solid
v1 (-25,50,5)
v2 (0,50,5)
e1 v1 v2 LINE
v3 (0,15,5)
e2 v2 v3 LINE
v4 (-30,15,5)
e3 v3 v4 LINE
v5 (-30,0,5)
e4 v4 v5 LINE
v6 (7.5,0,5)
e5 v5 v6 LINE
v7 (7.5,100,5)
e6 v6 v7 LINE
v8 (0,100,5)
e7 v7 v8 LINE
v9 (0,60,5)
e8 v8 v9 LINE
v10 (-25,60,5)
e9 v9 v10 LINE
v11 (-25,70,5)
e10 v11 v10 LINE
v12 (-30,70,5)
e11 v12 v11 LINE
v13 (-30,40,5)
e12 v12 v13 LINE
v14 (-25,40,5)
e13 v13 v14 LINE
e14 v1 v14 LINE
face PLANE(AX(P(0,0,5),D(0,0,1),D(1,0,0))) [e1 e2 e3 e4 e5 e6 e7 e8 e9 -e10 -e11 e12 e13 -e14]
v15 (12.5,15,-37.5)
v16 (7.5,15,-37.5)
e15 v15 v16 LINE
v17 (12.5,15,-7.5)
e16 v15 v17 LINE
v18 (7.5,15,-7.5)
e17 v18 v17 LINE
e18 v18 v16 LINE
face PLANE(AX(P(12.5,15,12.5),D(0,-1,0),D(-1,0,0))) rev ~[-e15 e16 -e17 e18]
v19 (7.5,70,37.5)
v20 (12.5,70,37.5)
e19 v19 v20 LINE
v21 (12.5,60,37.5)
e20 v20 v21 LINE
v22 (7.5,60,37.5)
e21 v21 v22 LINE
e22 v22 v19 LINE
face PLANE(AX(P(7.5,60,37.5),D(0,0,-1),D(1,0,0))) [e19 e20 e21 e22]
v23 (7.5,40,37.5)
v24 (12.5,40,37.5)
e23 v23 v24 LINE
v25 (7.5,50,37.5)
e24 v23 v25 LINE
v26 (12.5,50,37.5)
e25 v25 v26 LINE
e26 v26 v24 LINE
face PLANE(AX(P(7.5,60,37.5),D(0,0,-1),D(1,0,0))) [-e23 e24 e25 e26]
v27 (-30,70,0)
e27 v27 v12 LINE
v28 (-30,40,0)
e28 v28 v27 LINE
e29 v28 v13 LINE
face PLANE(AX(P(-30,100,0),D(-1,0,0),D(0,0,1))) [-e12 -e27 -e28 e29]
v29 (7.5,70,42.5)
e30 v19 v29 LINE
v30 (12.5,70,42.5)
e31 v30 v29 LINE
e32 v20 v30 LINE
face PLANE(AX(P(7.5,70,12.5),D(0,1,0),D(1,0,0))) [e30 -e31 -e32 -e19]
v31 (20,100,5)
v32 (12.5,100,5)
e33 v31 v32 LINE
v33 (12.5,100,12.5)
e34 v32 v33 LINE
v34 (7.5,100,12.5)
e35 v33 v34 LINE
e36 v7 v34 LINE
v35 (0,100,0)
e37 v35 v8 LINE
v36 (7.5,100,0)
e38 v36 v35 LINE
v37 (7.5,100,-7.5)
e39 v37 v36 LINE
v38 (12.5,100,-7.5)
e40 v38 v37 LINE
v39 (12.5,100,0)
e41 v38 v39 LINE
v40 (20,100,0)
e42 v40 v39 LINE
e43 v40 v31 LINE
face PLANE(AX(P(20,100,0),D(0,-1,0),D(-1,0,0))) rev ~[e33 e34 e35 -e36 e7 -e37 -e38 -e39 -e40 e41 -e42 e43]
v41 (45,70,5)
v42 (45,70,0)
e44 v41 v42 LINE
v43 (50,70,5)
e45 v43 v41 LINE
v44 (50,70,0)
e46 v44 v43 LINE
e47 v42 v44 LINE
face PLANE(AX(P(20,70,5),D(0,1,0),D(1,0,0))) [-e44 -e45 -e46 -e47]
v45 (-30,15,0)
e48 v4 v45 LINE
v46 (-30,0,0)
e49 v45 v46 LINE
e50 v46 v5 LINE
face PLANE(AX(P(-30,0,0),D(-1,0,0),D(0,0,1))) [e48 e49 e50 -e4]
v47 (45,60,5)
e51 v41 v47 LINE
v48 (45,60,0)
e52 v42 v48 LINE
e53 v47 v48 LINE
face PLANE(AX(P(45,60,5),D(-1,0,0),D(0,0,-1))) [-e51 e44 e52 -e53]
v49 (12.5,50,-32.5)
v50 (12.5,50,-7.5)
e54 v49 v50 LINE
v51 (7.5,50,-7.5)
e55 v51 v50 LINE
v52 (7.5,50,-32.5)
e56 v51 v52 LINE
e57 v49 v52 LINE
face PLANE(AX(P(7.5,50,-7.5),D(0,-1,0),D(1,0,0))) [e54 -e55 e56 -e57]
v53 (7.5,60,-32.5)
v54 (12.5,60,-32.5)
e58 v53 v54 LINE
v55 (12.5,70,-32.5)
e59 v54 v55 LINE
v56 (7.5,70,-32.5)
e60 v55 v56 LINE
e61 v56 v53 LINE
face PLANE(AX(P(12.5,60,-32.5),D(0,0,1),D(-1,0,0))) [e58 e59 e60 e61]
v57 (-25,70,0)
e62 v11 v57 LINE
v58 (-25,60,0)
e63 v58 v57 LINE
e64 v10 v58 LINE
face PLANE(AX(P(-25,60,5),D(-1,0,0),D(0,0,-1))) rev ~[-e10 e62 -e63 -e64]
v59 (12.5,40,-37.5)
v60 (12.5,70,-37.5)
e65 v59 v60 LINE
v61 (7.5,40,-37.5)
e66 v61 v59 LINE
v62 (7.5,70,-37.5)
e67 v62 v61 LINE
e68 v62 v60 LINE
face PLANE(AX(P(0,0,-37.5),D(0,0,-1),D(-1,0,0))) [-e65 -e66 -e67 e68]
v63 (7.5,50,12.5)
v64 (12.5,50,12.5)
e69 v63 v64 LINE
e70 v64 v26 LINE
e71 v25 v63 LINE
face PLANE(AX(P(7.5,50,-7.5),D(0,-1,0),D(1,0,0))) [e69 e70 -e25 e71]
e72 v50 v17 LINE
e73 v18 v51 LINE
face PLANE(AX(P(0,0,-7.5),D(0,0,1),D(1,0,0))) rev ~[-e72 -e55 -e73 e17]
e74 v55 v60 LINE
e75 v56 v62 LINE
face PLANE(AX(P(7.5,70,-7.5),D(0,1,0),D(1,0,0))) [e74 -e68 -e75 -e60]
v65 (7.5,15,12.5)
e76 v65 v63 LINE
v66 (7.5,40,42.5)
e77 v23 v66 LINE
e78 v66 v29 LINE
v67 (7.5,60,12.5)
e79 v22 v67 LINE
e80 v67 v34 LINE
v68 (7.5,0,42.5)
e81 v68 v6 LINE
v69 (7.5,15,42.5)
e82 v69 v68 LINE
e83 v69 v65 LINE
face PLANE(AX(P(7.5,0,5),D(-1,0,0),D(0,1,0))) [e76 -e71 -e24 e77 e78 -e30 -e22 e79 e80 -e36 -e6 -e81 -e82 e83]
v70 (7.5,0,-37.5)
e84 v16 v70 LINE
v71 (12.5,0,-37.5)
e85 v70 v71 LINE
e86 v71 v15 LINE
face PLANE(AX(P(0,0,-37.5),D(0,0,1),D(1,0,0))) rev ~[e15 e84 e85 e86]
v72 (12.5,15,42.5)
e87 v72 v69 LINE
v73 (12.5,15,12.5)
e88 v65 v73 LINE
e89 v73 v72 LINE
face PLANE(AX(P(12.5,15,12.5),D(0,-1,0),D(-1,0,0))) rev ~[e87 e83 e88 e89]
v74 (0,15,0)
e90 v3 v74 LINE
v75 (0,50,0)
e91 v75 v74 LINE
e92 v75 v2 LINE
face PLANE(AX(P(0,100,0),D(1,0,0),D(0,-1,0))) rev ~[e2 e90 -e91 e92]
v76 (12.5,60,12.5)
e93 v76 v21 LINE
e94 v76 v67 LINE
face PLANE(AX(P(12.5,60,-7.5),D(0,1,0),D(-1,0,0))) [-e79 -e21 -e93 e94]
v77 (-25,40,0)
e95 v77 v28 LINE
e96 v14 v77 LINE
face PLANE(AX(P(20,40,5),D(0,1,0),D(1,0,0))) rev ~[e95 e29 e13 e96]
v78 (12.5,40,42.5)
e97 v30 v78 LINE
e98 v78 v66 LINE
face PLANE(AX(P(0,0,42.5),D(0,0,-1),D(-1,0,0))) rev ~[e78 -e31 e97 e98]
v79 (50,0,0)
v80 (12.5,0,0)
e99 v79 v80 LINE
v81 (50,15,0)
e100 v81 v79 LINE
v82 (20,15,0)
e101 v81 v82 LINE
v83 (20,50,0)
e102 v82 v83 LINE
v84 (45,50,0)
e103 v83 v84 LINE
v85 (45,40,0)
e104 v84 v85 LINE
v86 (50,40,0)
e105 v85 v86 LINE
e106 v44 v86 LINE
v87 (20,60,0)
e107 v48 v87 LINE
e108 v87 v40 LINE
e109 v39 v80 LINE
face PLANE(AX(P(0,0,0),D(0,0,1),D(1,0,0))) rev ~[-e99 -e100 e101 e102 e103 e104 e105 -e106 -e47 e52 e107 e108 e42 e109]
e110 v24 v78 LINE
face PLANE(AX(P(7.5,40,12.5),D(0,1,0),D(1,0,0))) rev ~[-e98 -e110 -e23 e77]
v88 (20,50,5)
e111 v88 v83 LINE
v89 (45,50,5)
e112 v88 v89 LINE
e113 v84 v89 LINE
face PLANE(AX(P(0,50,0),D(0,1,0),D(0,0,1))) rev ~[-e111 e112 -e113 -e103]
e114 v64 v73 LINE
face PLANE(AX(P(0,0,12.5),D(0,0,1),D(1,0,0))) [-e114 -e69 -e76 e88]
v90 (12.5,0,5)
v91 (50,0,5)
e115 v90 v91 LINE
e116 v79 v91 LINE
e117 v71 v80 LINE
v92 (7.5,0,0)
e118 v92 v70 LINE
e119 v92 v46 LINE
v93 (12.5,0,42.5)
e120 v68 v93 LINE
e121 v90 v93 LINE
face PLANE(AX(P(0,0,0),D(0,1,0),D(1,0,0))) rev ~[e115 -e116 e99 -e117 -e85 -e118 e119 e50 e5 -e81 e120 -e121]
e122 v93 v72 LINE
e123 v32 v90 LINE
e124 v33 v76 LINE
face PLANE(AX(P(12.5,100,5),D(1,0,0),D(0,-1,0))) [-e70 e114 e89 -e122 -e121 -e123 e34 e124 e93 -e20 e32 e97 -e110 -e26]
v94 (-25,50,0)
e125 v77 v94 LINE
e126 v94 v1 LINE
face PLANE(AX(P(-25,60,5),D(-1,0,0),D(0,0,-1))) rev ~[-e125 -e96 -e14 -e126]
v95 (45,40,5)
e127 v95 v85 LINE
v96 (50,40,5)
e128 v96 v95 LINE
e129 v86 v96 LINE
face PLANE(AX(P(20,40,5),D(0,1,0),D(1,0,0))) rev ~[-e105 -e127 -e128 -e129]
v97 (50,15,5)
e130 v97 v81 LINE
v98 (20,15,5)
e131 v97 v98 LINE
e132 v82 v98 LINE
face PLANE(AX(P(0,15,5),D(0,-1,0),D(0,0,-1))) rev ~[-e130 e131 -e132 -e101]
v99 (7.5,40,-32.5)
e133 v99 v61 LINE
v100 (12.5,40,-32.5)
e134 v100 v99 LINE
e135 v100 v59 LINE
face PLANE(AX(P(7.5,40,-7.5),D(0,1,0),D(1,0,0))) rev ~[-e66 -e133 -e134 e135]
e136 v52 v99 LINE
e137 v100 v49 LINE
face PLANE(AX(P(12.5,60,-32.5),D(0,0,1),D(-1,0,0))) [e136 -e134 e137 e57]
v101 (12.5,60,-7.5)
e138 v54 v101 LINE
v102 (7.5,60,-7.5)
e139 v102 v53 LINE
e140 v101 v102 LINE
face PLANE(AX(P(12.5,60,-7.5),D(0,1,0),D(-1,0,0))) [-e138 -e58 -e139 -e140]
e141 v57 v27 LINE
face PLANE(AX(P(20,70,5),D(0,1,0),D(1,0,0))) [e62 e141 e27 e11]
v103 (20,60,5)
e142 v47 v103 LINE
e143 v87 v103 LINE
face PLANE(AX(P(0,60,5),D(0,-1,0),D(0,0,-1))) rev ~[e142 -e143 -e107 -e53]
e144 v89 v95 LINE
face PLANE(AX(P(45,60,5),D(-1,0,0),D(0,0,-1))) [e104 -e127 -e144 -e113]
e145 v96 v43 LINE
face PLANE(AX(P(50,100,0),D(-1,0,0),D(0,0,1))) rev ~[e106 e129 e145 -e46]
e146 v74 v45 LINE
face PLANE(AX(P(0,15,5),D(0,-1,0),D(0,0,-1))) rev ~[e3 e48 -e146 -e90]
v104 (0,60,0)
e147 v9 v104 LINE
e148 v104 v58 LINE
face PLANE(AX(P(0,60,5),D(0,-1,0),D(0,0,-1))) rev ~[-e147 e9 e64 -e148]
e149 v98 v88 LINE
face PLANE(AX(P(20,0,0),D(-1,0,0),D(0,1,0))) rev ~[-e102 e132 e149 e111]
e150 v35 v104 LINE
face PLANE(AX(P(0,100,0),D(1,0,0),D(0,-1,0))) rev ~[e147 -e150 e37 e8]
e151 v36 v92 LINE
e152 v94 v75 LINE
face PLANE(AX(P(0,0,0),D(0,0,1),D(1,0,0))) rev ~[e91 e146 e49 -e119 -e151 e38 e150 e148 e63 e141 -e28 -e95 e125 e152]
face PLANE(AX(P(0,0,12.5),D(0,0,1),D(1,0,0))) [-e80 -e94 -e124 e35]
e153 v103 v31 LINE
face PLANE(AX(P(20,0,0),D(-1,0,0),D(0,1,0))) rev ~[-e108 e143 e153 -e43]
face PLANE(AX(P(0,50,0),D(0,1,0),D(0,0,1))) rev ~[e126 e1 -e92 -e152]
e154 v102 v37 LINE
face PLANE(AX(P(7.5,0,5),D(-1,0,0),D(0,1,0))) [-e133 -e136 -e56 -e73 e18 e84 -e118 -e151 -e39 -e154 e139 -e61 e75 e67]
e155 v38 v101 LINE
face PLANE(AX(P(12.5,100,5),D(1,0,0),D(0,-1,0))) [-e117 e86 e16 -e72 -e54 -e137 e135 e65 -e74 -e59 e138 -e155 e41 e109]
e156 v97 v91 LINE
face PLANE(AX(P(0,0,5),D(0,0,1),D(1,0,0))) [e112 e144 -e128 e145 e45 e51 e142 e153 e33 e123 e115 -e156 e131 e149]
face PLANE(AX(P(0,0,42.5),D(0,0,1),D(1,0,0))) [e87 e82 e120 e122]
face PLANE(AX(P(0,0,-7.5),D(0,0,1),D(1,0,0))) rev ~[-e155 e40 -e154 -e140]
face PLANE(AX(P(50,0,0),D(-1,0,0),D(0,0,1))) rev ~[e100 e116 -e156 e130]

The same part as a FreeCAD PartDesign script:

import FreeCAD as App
import Part
import Sketcher
from FreeCAD import Vector
Q = App.Units.Quantity

doc = App.newDocument("Part")
body = doc.addObject("PartDesign::Body", "Body")

sketch1 = body.newObject("Sketcher::SketchObject", "Sketch")
sketch1.AttachmentSupport = (doc.getObject("XY_Plane"), [""])
sketch1.MapMode = "FlatFace"
sketch1.addGeometry([
    Part.LineSegment(Vector(0, 100, 0), Vector(0, 0, 0)),
    Part.LineSegment(Vector(0, 0, 0), Vector(20, 0, 0)),
    Part.LineSegment(Vector(20, 0, 0), Vector(20, 100, 0)),
    Part.LineSegment(Vector(20, 100, 0), Vector(0, 100, 0)),
], False)
sketch1.addConstraint([
    Sketcher.Constraint("Coincident", 0, 2, 1, 1),
    Sketcher.Constraint("Coincident", 1, 2, 2, 1),
    Sketcher.Constraint("Coincident", 2, 2, 3, 1),
    Sketcher.Constraint("Coincident", 3, 2, 0, 1),
    Sketcher.Constraint("Vertical", 0),
    Sketcher.Constraint("Horizontal", 1),
    Sketcher.Constraint("Vertical", 2),
    Sketcher.Constraint("Horizontal", 3),
    Sketcher.Constraint("Coincident", 0, 2, -1, 1),
    Sketcher.Constraint("DistanceX", 1, 1, 1, 2, Q("20 mm")),
    Sketcher.Constraint("DistanceY", 0, 2, 0, 1, Q("100 mm")),
])
pad1 = body.newObject("PartDesign::Pad", "Pad")
pad1.Profile = sketch1
pad1.Length = 5

sketch2 = body.newObject("Sketcher::SketchObject", "Sketch001")
sketch2.AttachmentSupport = (doc.getObject("XY_Plane"), [""])
sketch2.MapMode = "FlatFace"
sketch2.AttachmentOffset = App.Placement(Vector(0, 0, 5), App.Rotation())
sketch2.addGeometry([
    Part.LineSegment(Vector(12.5, 0, 0), Vector(12.5, 100, 0)),
    Part.LineSegment(Vector(12.5, 100, 0), Vector(7.5, 100, 0)),
    Part.LineSegment(Vector(7.5, 100, 0), Vector(7.5, 0, 0)),
    Part.LineSegment(Vector(7.5, 0, 0), Vector(12.5, 0, 0)),
], False)
sketch2.addConstraint([
    Sketcher.Constraint("Coincident", 0, 2, 1, 1),
    Sketcher.Constraint("Coincident", 1, 2, 2, 1),
    Sketcher.Constraint("Coincident", 2, 2, 3, 1),
    Sketcher.Constraint("Coincident", 3, 2, 0, 1),
    Sketcher.Constraint("Vertical", 0),
    Sketcher.Constraint("Horizontal", 1),
    Sketcher.Constraint("Vertical", 2),
    Sketcher.Constraint("Horizontal", 3),
    Sketcher.Constraint("PointOnObject", 2, 2, -1),
    Sketcher.Constraint("DistanceX", -1, 1, 1, 2, Q("7.5 mm")),
    Sketcher.Constraint("DistanceX", 1, 2, 1, 1, Q("5 mm")),
    Sketcher.Constraint("DistanceY", 0, 1, 0, 2, Q("100 mm")),
])
pad2 = body.newObject("PartDesign::Pad", "Pad001")
pad2.Profile = sketch2
pad2.Type = "TwoLengths"
pad2.Length = 7.5
pad2.Length2 = 12.5

sketch3 = body.newObject("Sketcher::SketchObject", "Sketch002")
sketch3.AttachmentSupport = (doc.getObject("XY_Plane"), [""])
sketch3.MapMode = "FlatFace"
sketch3.AttachmentOffset = App.Placement(Vector(0, 0, 12.5), App.Rotation())
sketch3.addGeometry([
    Part.LineSegment(Vector(7.5, 0, 0), Vector(12.5, 0, 0)),
    Part.LineSegment(Vector(12.5, 0, 0), Vector(12.5, 15, 0)),
    Part.LineSegment(Vector(12.5, 15, 0), Vector(7.5, 15, 0)),
    Part.LineSegment(Vector(7.5, 15, 0), Vector(7.5, 0, 0)),
], False)
sketch3.addConstraint([
    Sketcher.Constraint("Coincident", 0, 2, 1, 1),
    Sketcher.Constraint("Coincident", 1, 2, 2, 1),
    Sketcher.Constraint("Coincident", 2, 2, 3, 1),
    Sketcher.Constraint("Coincident", 3, 2, 0, 1),
    Sketcher.Constraint("Horizontal", 0),
    Sketcher.Constraint("Vertical", 1),
    Sketcher.Constraint("Horizontal", 2),
    Sketcher.Constraint("Vertical", 3),
    Sketcher.Constraint("PointOnObject", 0, 2, -1),
    Sketcher.Constraint("DistanceY", 1, 1, 1, 2, Q("15 mm")),
    Sketcher.Constraint("DistanceX", 0, 1, 0, 2, Q("5 mm")),
    Sketcher.Constraint("DistanceX", -1, 1, 0, 2, Q("12.5 mm")),
])
pad3 = body.newObject("PartDesign::Pad", "Pad002")
pad3.Profile = sketch3
pad3.Type = "TwoLengths"
pad3.Length = 30
pad3.Length2 = 50

sketch4 = body.newObject("Sketcher::SketchObject", "Sketch003")
sketch4.AttachmentSupport = (doc.getObject("YZ_Plane"), [""])
sketch4.MapMode = "FlatFace"
sketch4.addGeometry([
    Part.LineSegment(Vector(0, 5, 0), Vector(15, 5, 0)),
    Part.LineSegment(Vector(15, 5, 0), Vector(15, 0, 0)),
    Part.LineSegment(Vector(15, 0, 0), Vector(0, 0, 0)),
    Part.LineSegment(Vector(0, 0, 0), Vector(0, 5, 0)),
], False)
sketch4.addConstraint([
    Sketcher.Constraint("Coincident", 0, 2, 1, 1),
    Sketcher.Constraint("Coincident", 1, 2, 2, 1),
    Sketcher.Constraint("Coincident", 2, 2, 3, 1),
    Sketcher.Constraint("Coincident", 3, 2, 0, 1),
    Sketcher.Constraint("Horizontal", 0),
    Sketcher.Constraint("Vertical", 1),
    Sketcher.Constraint("Horizontal", 2),
    Sketcher.Constraint("Vertical", 3),
    Sketcher.Constraint("Coincident", 2, 2, -1, 1),
    Sketcher.Constraint("DistanceX", 0, 1, 0, 2, Q("15 mm")),
    Sketcher.Constraint("DistanceY", 1, 2, 1, 1, Q("5 mm")),
])
pad4 = body.newObject("PartDesign::Pad", "Pad003")
pad4.Profile = sketch4
pad4.Type = "TwoLengths"
pad4.Length = 30
pad4.Length2 = 50
pad4.Reversed = True

sketch5 = body.newObject("Sketcher::SketchObject", "Sketch004")
sketch5.AttachmentSupport = (doc.getObject("YZ_Plane"), [""])
sketch5.MapMode = "FlatFace"
sketch5.addGeometry([
    Part.LineSegment(Vector(50, 5, 0), Vector(60, 5, 0)),
    Part.LineSegment(Vector(60, 5, 0), Vector(60, 0, 0)),
    Part.LineSegment(Vector(60, 0, 0), Vector(50, 0, 0)),
    Part.LineSegment(Vector(50, 0, 0), Vector(50, 5, 0)),
], False)
sketch5.addConstraint([
    Sketcher.Constraint("Coincident", 0, 2, 1, 1),
    Sketcher.Constraint("Coincident", 1, 2, 2, 1),
    Sketcher.Constraint("Coincident", 2, 2, 3, 1),
    Sketcher.Constraint("Coincident", 3, 2, 0, 1),
    Sketcher.Constraint("Horizontal", 0),
    Sketcher.Constraint("Vertical", 1),
    Sketcher.Constraint("Horizontal", 2),
    Sketcher.Constraint("Vertical", 3),
    Sketcher.Constraint("PointOnObject", 1, 2, -1),
    Sketcher.Constraint("DistanceX", 0, 1, 0, 2, Q("10 mm")),
    Sketcher.Constraint("DistanceY", 1, 2, 1, 1, Q("5 mm")),
    Sketcher.Constraint("DistanceX", -1, 1, 0, 2, Q("60 mm")),
])
pad5 = body.newObject("PartDesign::Pad", "Pad004")
pad5.Profile = sketch5
pad5.Type = "TwoLengths"
pad5.Length = 30
pad5.Length2 = 50
pad5.Reversed = True

sketch6 = body.newObject("Sketcher::SketchObject", "Sketch005")
sketch6.AttachmentSupport = (doc.getObject("XZ_Plane"), [""])
sketch6.MapMode = "FlatFace"
sketch6.AttachmentOffset = App.Placement(Vector(0, 0, -60), App.Rotation())
sketch6.addGeometry([
    Part.LineSegment(Vector(-25, 5, 0), Vector(-25, 0, 0)),
    Part.LineSegment(Vector(-25, 0, 0), Vector(-30, 0, 0)),
    Part.LineSegment(Vector(-30, 0, 0), Vector(-30, 5, 0)),
    Part.LineSegment(Vector(-30, 5, 0), Vector(-25, 5, 0)),
], False)
sketch6.addConstraint([
    Sketcher.Constraint("Coincident", 0, 2, 1, 1),
    Sketcher.Constraint("Coincident", 1, 2, 2, 1),
    Sketcher.Constraint("Coincident", 2, 2, 3, 1),
    Sketcher.Constraint("Coincident", 3, 2, 0, 1),
    Sketcher.Constraint("Vertical", 0),
    Sketcher.Constraint("Horizontal", 1),
    Sketcher.Constraint("Vertical", 2),
    Sketcher.Constraint("Horizontal", 3),
    Sketcher.Constraint("PointOnObject", 0, 2, -1),
    Sketcher.Constraint("Equal", 3, 0),
    Sketcher.Constraint("DistanceX", 1, 2, 1, 1, Q("5 mm")),
    Sketcher.Constraint("DistanceX", 0, 2, -1, 1, Q("25 mm")),
])
pad6 = body.newObject("PartDesign::Pad", "Pad005")
pad6.Profile = sketch6
pad6.Type = "TwoLengths"
pad6.Length = 10
pad6.Length2 = 20
pad6.Reversed = True

sketch7 = body.newObject("Sketcher::SketchObject", "Sketch006")
sketch7.AttachmentSupport = (doc.getObject("XZ_Plane"), [""])
sketch7.MapMode = "FlatFace"
sketch7.AttachmentOffset = App.Placement(Vector(0, 0, -60), App.Rotation())
sketch7.addGeometry([
    Part.LineSegment(Vector(45, 5, 0), Vector(50, 5, 0)),
    Part.LineSegment(Vector(50, 5, 0), Vector(50, 0, 0)),
    Part.LineSegment(Vector(50, 0, 0), Vector(45, 0, 0)),
    Part.LineSegment(Vector(45, 0, 0), Vector(45, 5, 0)),
], False)
sketch7.addConstraint([
    Sketcher.Constraint("Coincident", 0, 2, 1, 1),
    Sketcher.Constraint("Coincident", 1, 2, 2, 1),
    Sketcher.Constraint("Coincident", 2, 2, 3, 1),
    Sketcher.Constraint("Coincident", 3, 2, 0, 1),
    Sketcher.Constraint("Horizontal", 0),
    Sketcher.Constraint("Vertical", 1),
    Sketcher.Constraint("Horizontal", 2),
    Sketcher.Constraint("Vertical", 3),
    Sketcher.Constraint("PointOnObject", 1, 2, -1),
    Sketcher.Constraint("Equal", 2, 1),
    Sketcher.Constraint("DistanceX", 0, 1, 0, 2, Q("5 mm")),
    Sketcher.Constraint("DistanceX", -1, 1, 0, 2, Q("50 mm")),
])
pad7 = body.newObject("PartDesign::Pad", "Pad006")
pad7.Profile = sketch7
pad7.Type = "TwoLengths"
pad7.Length = 10
pad7.Length2 = 20
pad7.Reversed = True

sketch8 = body.newObject("Sketcher::SketchObject", "Sketch007")
sketch8.AttachmentSupport = (doc.getObject("XY_Plane"), [""])
sketch8.MapMode = "FlatFace"
sketch8.AttachmentOffset = App.Placement(Vector(0, 0, -7.5), App.Rotation())
sketch8.addGeometry([
    Part.LineSegment(Vector(12.5, 50, 0), Vector(7.5, 50, 0)),
    Part.LineSegment(Vector(7.5, 50, 0), Vector(7.5, 60, 0)),
    Part.LineSegment(Vector(7.5, 60, 0), Vector(12.5, 60, 0)),
    Part.LineSegment(Vector(12.5, 60, 0), Vector(12.5, 50, 0)),
], False)
sketch8.addConstraint([
    Sketcher.Constraint("Coincident", 0, 2, 1, 1),
    Sketcher.Constraint("Coincident", 1, 2, 2, 1),
    Sketcher.Constraint("Coincident", 2, 2, 3, 1),
    Sketcher.Constraint("Coincident", 3, 2, 0, 1),
    Sketcher.Constraint("Horizontal", 0),
    Sketcher.Constraint("Vertical", 1),
    Sketcher.Constraint("Horizontal", 2),
    Sketcher.Constraint("Vertical", 3),
    Sketcher.Constraint("DistanceX", 0, 2, 0, 1, Q("5 mm")),
    Sketcher.Constraint("DistanceY", 1, 1, 1, 2, Q("10 mm")),
    Sketcher.Constraint("DistanceY", -1, 1, 0, 2, Q("50 mm")),
    Sketcher.Constraint("DistanceX", -1, 1, 0, 2, Q("7.5 mm")),
])
pad8 = body.newObject("PartDesign::Pad", "Pad007")
pad8.Profile = sketch8
pad8.Type = "TwoLengths"
pad8.Length = 30
pad8.Length2 = 50
pad8.Reversed = True

sketch9 = body.newObject("Sketcher::SketchObject", "Sketch008")
sketch9.AttachmentSupport = (doc.getObject("XZ_Plane"), [""])
sketch9.MapMode = "FlatFace"
sketch9.AttachmentOffset = App.Placement(Vector(0, 0, -60), App.Rotation())
sketch9.addGeometry([
    Part.LineSegment(Vector(12.5, 37.5, 0), Vector(7.5, 37.5, 0)),
    Part.LineSegment(Vector(7.5, 37.5, 0), Vector(7.5, 42.5, 0)),
    Part.LineSegment(Vector(7.5, 42.5, 0), Vector(12.5, 42.5, 0)),
    Part.LineSegment(Vector(12.5, 42.5, 0), Vector(12.5, 37.5, 0)),
], False)
sketch9.addConstraint([
    Sketcher.Constraint("Coincident", 0, 2, 1, 1),
    Sketcher.Constraint("Coincident", 1, 2, 2, 1),
    Sketcher.Constraint("Coincident", 2, 2, 3, 1),
    Sketcher.Constraint("Coincident", 3, 2, 0, 1),
    Sketcher.Constraint("Horizontal", 0),
    Sketcher.Constraint("Vertical", 1),
    Sketcher.Constraint("Horizontal", 2),
    Sketcher.Constraint("Vertical", 3),
    Sketcher.Constraint("Equal", 2, 1),
    Sketcher.Constraint("DistanceX", 0, 2, 0, 1, Q("5 mm")),
    Sketcher.Constraint("DistanceX", -1, 1, 0, 2, Q("7.5 mm")),
    Sketcher.Constraint("DistanceY", -1, 1, 0, 2, Q("37.5 mm")),
])
pad9 = body.newObject("PartDesign::Pad", "Pad008")
pad9.Profile = sketch9
pad9.Type = "TwoLengths"
pad9.Length = 10
pad9.Length2 = 20
pad9.Reversed = True

sketch10 = body.newObject("Sketcher::SketchObject", "Sketch009")
sketch10.AttachmentSupport = (doc.getObject("XZ_Plane"), [""])
sketch10.MapMode = "FlatFace"
sketch10.AttachmentOffset = App.Placement(Vector(0, 0, -60), App.Rotation())
sketch10.addGeometry([
    Part.LineSegment(Vector(7.5, -32.5, 0), Vector(12.5, -32.5, 0)),
    Part.LineSegment(Vector(12.5, -32.5, 0), Vector(12.5, -37.5, 0)),
    Part.LineSegment(Vector(12.5, -37.5, 0), Vector(7.5, -37.5, 0)),
    Part.LineSegment(Vector(7.5, -37.5, 0), Vector(7.5, -32.5, 0)),
], False)
sketch10.addConstraint([
    Sketcher.Constraint("Coincident", 0, 2, 1, 1),
    Sketcher.Constraint("Coincident", 1, 2, 2, 1),
    Sketcher.Constraint("Coincident", 2, 2, 3, 1),
    Sketcher.Constraint("Coincident", 3, 2, 0, 1),
    Sketcher.Constraint("Horizontal", 0),
    Sketcher.Constraint("Vertical", 1),
    Sketcher.Constraint("Horizontal", 2),
    Sketcher.Constraint("Vertical", 3),
    Sketcher.Constraint("Equal", 2, 1),
    Sketcher.Constraint("DistanceX", 0, 1, 0, 2, Q("5 mm")),
    Sketcher.Constraint("DistanceX", -1, 1, 0, 2, Q("12.5 mm")),
    Sketcher.Constraint("DistanceY", 0, 2, -1, 1, Q("32.5 mm")),
])
pad10 = body.newObject("PartDesign::Pad", "Pad009")
pad10.Profile = sketch10
pad10.Type = "TwoLengths"
pad10.Length = 10
pad10.Length2 = 20
pad10.Reversed = True

doc.recompute()
